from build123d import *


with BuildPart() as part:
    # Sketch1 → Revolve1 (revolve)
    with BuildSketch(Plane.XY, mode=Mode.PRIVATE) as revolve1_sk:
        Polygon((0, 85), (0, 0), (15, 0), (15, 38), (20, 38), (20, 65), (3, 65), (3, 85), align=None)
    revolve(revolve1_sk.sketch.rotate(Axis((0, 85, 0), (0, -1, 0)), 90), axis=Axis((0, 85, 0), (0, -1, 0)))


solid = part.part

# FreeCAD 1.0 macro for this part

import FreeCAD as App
import Part
import Sketcher
Q = App.Units.Quantity

doc = App.newDocument("Part")
body = doc.addObject("PartDesign::Body", "Body")

sketch1 = body.newObject("Sketcher::SketchObject", "Sketch")
sketch1.AttachmentSupport = (doc.getObject("XY_Plane"), [""])
sketch1.MapMode = "FlatFace"
sketch1.addGeometry([
    Part.LineSegment(App.Vector(0, 85, 0), App.Vector(0, 0, 0)),
    Part.LineSegment(App.Vector(0, 0, 0), App.Vector(15, 0, 0)),
    Part.LineSegment(App.Vector(15, 0, 0), App.Vector(15, 38, 0)),
    Part.LineSegment(App.Vector(15, 38, 0), App.Vector(20, 38, 0)),
    Part.LineSegment(App.Vector(20, 38, 0), App.Vector(20, 65, 0)),
    Part.LineSegment(App.Vector(20, 65, 0), App.Vector(3, 65, 0)),
    Part.LineSegment(App.Vector(3, 65, 0), App.Vector(3, 85, 0)),
    Part.LineSegment(App.Vector(3, 85, 0), App.Vector(0, 85, 0)),
], False)
sketch1.addConstraint([
    Sketcher.Constraint("Coincident", 0, 2, 1, 1),
    Sketcher.Constraint("Coincident", 1, 2, 2, 1),
    Sketcher.Constraint("Coincident", 2, 2, 3, 1),
    Sketcher.Constraint("Coincident", 3, 2, 4, 1),
    Sketcher.Constraint("Coincident", 4, 2, 5, 1),
    Sketcher.Constraint("Coincident", 5, 2, 6, 1),
    Sketcher.Constraint("Coincident", 6, 2, 7, 1),
    Sketcher.Constraint("Coincident", 7, 2, 0, 1),
    Sketcher.Constraint("Vertical", 0),
    Sketcher.Constraint("Horizontal", 1),
    Sketcher.Constraint("Vertical", 2),
    Sketcher.Constraint("Horizontal", 3),
    Sketcher.Constraint("Vertical", 4),
    Sketcher.Constraint("Horizontal", 5),
    Sketcher.Constraint("Vertical", 6),
    Sketcher.Constraint("Horizontal", 7),
    Sketcher.Constraint("Coincident", 0, 2, -1, 1),
    Sketcher.Constraint("DistanceX", 1, 1, 1, 2, Q("15 mm")),
    Sketcher.Constraint("DistanceX", 3, 1, 3, 2, Q("5 mm")),
    Sketcher.Constraint("DistanceX", 5, 2, 5, 1, Q("17 mm")),
    Sketcher.Constraint("DistanceY", 0, 2, 0, 1, Q("85 mm")),
    Sketcher.Constraint("DistanceY", 2, 1, 2, 2, Q("38 mm")),
    Sketcher.Constraint("DistanceY", 4, 1, 4, 2, Q("27 mm")),
])
revolution = body.newObject("PartDesign::Revolution", "Revolution")
revolution.Profile = sketch1
revolution.ReferenceAxis = (sketch1, ["V_Axis"])
revolution.Angle = 360

doc.recompute()
